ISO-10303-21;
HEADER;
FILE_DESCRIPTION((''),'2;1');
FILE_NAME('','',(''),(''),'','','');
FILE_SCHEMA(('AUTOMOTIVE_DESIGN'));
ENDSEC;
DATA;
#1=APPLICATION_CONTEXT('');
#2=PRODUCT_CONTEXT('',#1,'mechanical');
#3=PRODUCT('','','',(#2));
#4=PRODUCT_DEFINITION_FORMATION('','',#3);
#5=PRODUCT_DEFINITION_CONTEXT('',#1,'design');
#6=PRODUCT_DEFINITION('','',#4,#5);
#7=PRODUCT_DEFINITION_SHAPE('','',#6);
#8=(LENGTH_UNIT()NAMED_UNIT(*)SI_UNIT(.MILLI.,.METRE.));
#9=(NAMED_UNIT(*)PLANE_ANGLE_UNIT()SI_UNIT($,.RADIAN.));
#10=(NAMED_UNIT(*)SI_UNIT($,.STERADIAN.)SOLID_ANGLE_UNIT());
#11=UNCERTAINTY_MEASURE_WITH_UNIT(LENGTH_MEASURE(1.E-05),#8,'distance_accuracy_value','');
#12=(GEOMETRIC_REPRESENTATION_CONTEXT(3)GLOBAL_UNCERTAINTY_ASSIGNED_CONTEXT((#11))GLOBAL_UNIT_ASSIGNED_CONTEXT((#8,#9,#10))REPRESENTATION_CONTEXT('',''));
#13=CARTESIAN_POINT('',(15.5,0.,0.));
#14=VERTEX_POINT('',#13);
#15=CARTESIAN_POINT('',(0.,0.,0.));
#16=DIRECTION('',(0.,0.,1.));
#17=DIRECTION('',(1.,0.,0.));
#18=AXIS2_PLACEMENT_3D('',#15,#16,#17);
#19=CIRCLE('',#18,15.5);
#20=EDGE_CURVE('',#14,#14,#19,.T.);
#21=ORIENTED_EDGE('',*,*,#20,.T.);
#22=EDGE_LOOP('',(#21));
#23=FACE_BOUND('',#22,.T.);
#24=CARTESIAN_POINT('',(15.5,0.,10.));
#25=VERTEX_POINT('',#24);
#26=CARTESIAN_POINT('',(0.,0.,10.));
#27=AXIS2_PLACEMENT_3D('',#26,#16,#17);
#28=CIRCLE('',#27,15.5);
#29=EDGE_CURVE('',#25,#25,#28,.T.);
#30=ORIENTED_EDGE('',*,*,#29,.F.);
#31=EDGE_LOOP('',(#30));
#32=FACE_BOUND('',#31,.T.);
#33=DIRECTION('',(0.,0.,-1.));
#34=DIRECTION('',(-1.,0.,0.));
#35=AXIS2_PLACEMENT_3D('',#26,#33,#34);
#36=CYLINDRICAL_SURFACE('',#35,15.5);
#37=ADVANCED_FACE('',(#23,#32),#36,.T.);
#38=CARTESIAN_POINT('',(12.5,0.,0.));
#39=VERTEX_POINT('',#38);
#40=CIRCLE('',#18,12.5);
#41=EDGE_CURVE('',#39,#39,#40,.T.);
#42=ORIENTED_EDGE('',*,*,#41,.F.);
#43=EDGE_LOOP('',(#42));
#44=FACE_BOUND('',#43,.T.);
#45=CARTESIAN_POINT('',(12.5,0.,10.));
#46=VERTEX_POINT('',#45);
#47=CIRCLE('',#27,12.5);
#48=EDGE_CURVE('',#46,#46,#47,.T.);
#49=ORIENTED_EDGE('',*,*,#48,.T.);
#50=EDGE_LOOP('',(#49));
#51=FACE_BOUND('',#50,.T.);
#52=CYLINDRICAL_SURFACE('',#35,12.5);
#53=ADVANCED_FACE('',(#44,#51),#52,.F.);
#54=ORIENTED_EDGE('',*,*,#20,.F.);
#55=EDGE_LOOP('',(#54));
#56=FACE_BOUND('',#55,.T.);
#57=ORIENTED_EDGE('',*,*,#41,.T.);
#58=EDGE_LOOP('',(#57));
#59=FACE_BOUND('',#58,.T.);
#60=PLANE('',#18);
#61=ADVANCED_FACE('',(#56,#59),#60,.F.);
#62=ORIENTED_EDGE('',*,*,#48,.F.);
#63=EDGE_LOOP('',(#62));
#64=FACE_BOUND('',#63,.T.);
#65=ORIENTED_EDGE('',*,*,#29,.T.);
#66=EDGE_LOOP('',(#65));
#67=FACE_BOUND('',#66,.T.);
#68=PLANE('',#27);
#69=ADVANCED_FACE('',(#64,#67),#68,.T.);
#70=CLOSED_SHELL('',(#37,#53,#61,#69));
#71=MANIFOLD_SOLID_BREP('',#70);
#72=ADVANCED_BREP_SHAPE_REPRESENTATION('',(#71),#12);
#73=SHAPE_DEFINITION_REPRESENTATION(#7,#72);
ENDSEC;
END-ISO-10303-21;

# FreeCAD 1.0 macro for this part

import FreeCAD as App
import Part
import Sketcher

doc = App.newDocument("Part")
body = doc.addObject("PartDesign::Body", "Body")

# Sketch on XY plane
sketch1 = body.newObject("Sketcher::SketchObject", "Sketch")
sketch1.AttachmentSupport = (doc.getObject("XY_Plane"), [""])
sketch1.MapMode = "FlatFace"
sketch1.addGeometry(Part.Circle(App.Vector(0, 0, 0), App.Vector(0, 0, 1), 16), False)
sketch1.addGeometry(Part.Circle(App.Vector(0, 0, 0), App.Vector(0, 0, 1), 12), False)
sketch1.addConstraint(Sketcher.Constraint("Coincident", 0, 3, -1, 1))
sketch1.addConstraint(Sketcher.Constraint("Coincident", 1, 3, -1, 1))
sketch1.addConstraint(Sketcher.Constraint("Diameter", 0, 31.0))
sketch1.addConstraint(Sketcher.Constraint("Diameter", 1, 25.0))
pad1 = body.newObject("PartDesign::Pad", "Pad")
pad1.Profile = sketch1
pad1.Length = 10

doc.recompute()
